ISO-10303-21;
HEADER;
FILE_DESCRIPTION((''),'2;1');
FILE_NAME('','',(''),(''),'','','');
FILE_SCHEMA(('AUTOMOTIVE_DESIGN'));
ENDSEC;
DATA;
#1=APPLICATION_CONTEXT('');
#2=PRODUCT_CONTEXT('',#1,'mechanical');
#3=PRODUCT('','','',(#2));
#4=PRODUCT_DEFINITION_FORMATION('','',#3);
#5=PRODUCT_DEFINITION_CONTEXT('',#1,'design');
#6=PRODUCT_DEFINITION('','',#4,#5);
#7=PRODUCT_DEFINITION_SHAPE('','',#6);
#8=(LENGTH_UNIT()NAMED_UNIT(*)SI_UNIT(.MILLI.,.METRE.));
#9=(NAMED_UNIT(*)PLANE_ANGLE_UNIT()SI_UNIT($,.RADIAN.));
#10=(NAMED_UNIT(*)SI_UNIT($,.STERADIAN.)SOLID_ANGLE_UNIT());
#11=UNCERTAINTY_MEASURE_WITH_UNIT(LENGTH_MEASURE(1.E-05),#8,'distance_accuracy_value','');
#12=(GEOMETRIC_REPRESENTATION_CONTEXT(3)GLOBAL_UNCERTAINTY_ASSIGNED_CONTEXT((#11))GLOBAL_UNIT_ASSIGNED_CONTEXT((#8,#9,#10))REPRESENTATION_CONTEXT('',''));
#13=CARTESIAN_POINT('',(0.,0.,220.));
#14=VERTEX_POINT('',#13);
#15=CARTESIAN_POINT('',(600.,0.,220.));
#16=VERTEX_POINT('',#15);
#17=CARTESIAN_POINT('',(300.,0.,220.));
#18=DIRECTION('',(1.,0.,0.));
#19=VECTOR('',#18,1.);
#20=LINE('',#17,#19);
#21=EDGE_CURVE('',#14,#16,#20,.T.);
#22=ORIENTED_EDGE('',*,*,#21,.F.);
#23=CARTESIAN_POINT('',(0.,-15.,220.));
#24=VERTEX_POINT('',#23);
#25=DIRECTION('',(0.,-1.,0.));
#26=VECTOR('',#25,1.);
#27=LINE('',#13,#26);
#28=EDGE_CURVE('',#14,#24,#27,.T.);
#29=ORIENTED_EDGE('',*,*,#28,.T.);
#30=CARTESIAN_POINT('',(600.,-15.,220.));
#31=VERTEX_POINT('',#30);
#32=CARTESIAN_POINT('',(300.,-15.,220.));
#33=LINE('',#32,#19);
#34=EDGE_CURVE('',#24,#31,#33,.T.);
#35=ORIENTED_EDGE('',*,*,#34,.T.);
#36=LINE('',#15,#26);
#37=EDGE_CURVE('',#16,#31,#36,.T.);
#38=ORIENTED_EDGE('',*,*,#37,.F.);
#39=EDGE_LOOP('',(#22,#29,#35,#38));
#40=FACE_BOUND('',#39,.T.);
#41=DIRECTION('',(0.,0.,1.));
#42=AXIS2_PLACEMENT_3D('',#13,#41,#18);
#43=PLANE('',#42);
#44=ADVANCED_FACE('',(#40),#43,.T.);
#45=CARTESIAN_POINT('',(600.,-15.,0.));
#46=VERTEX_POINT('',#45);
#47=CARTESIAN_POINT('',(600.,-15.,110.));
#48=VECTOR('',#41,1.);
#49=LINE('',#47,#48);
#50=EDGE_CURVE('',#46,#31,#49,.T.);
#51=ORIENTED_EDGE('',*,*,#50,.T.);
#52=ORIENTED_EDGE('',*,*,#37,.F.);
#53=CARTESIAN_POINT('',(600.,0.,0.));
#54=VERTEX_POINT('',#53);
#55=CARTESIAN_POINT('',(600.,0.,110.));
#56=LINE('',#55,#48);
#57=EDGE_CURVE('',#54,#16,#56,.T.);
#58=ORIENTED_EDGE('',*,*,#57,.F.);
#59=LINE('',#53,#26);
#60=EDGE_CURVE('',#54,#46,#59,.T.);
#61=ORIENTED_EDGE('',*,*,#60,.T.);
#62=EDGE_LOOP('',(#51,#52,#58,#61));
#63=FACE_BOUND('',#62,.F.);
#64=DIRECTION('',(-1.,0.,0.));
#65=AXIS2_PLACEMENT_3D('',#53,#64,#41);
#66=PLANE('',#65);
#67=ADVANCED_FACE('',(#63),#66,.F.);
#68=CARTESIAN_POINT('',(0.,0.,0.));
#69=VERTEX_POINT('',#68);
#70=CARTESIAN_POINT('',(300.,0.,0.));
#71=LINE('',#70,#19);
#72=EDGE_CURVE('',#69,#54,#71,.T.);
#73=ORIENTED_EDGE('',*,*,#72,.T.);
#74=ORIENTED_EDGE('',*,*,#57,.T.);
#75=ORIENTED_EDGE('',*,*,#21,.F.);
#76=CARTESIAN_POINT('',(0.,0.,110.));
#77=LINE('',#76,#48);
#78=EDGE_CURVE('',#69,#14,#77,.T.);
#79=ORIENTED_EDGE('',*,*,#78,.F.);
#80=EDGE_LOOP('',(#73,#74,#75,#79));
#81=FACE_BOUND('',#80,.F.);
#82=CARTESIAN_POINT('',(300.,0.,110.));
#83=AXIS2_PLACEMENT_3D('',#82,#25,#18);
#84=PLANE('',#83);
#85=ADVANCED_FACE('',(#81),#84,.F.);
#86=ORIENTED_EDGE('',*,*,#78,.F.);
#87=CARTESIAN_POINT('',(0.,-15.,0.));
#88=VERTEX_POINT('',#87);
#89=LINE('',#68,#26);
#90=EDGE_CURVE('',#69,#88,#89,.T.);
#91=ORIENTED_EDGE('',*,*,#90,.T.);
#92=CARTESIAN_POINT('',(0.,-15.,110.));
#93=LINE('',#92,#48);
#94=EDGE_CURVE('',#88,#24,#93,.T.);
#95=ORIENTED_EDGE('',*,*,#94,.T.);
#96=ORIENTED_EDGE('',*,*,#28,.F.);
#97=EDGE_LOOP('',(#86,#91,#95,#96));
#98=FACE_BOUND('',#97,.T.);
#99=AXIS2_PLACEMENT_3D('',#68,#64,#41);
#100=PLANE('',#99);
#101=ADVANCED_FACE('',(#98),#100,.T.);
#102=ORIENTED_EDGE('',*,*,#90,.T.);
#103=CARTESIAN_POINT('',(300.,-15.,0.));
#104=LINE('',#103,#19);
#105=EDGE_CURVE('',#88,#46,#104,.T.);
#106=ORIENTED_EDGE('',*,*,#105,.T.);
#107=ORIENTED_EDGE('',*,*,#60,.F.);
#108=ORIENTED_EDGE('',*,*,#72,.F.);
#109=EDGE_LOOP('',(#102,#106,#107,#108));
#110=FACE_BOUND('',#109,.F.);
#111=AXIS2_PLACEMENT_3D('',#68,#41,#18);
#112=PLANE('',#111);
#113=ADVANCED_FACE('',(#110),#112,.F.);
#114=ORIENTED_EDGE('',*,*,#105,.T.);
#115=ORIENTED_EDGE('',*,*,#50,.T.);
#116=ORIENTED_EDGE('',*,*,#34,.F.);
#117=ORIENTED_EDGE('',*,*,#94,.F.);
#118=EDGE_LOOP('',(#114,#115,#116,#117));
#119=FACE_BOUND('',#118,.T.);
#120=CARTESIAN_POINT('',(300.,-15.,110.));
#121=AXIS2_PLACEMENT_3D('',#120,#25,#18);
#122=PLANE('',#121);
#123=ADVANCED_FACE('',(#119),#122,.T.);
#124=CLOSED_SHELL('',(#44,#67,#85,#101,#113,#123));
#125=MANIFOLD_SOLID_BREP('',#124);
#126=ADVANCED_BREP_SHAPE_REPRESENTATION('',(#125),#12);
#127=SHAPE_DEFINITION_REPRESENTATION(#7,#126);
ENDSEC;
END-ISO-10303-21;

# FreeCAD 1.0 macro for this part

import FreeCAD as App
import Part
import Sketcher

V = App.Vector

doc = App.newDocument("Part")
body = doc.addObject("PartDesign::Body", "Body")

sketch1 = body.newObject("Sketcher::SketchObject", "Sketch")
sketch1.AttachmentSupport = (doc.getObject("XZ_Plane"), [""])
sketch1.MapMode = "FlatFace"
sketch1.addGeometry([
    Part.LineSegment(V(0, 220, 0), V(0, 0, 0)),
    Part.LineSegment(V(0, 0, 0), V(600, 0, 0)),
    Part.LineSegment(V(600, 0, 0), V(600, 220, 0)),
    Part.LineSegment(V(600, 220, 0), V(0, 220, 0)),
], False)
sketch1.addConstraint([
    Sketcher.Constraint("Coincident", 0, 2, 1, 1),
    Sketcher.Constraint("Coincident", 1, 2, 2, 1),
    Sketcher.Constraint("Coincident", 2, 2, 3, 1),
    Sketcher.Constraint("Coincident", 3, 2, 0, 1),
    Sketcher.Constraint("Vertical", 0),
    Sketcher.Constraint("Horizontal", 1),
    Sketcher.Constraint("Vertical", 2),
    Sketcher.Constraint("Horizontal", 3),
    Sketcher.Constraint("Coincident", 0, 2, -1, 1),
    Sketcher.Constraint("DistanceX", 1, 1, 1, 2, 600.0),
    Sketcher.Constraint("DistanceY", 0, 2, 0, 1, 220.0),
])
pad1 = body.newObject("PartDesign::Pad", "Pad")
pad1.Profile = sketch1
pad1.Length = 15

doc.recompute()
